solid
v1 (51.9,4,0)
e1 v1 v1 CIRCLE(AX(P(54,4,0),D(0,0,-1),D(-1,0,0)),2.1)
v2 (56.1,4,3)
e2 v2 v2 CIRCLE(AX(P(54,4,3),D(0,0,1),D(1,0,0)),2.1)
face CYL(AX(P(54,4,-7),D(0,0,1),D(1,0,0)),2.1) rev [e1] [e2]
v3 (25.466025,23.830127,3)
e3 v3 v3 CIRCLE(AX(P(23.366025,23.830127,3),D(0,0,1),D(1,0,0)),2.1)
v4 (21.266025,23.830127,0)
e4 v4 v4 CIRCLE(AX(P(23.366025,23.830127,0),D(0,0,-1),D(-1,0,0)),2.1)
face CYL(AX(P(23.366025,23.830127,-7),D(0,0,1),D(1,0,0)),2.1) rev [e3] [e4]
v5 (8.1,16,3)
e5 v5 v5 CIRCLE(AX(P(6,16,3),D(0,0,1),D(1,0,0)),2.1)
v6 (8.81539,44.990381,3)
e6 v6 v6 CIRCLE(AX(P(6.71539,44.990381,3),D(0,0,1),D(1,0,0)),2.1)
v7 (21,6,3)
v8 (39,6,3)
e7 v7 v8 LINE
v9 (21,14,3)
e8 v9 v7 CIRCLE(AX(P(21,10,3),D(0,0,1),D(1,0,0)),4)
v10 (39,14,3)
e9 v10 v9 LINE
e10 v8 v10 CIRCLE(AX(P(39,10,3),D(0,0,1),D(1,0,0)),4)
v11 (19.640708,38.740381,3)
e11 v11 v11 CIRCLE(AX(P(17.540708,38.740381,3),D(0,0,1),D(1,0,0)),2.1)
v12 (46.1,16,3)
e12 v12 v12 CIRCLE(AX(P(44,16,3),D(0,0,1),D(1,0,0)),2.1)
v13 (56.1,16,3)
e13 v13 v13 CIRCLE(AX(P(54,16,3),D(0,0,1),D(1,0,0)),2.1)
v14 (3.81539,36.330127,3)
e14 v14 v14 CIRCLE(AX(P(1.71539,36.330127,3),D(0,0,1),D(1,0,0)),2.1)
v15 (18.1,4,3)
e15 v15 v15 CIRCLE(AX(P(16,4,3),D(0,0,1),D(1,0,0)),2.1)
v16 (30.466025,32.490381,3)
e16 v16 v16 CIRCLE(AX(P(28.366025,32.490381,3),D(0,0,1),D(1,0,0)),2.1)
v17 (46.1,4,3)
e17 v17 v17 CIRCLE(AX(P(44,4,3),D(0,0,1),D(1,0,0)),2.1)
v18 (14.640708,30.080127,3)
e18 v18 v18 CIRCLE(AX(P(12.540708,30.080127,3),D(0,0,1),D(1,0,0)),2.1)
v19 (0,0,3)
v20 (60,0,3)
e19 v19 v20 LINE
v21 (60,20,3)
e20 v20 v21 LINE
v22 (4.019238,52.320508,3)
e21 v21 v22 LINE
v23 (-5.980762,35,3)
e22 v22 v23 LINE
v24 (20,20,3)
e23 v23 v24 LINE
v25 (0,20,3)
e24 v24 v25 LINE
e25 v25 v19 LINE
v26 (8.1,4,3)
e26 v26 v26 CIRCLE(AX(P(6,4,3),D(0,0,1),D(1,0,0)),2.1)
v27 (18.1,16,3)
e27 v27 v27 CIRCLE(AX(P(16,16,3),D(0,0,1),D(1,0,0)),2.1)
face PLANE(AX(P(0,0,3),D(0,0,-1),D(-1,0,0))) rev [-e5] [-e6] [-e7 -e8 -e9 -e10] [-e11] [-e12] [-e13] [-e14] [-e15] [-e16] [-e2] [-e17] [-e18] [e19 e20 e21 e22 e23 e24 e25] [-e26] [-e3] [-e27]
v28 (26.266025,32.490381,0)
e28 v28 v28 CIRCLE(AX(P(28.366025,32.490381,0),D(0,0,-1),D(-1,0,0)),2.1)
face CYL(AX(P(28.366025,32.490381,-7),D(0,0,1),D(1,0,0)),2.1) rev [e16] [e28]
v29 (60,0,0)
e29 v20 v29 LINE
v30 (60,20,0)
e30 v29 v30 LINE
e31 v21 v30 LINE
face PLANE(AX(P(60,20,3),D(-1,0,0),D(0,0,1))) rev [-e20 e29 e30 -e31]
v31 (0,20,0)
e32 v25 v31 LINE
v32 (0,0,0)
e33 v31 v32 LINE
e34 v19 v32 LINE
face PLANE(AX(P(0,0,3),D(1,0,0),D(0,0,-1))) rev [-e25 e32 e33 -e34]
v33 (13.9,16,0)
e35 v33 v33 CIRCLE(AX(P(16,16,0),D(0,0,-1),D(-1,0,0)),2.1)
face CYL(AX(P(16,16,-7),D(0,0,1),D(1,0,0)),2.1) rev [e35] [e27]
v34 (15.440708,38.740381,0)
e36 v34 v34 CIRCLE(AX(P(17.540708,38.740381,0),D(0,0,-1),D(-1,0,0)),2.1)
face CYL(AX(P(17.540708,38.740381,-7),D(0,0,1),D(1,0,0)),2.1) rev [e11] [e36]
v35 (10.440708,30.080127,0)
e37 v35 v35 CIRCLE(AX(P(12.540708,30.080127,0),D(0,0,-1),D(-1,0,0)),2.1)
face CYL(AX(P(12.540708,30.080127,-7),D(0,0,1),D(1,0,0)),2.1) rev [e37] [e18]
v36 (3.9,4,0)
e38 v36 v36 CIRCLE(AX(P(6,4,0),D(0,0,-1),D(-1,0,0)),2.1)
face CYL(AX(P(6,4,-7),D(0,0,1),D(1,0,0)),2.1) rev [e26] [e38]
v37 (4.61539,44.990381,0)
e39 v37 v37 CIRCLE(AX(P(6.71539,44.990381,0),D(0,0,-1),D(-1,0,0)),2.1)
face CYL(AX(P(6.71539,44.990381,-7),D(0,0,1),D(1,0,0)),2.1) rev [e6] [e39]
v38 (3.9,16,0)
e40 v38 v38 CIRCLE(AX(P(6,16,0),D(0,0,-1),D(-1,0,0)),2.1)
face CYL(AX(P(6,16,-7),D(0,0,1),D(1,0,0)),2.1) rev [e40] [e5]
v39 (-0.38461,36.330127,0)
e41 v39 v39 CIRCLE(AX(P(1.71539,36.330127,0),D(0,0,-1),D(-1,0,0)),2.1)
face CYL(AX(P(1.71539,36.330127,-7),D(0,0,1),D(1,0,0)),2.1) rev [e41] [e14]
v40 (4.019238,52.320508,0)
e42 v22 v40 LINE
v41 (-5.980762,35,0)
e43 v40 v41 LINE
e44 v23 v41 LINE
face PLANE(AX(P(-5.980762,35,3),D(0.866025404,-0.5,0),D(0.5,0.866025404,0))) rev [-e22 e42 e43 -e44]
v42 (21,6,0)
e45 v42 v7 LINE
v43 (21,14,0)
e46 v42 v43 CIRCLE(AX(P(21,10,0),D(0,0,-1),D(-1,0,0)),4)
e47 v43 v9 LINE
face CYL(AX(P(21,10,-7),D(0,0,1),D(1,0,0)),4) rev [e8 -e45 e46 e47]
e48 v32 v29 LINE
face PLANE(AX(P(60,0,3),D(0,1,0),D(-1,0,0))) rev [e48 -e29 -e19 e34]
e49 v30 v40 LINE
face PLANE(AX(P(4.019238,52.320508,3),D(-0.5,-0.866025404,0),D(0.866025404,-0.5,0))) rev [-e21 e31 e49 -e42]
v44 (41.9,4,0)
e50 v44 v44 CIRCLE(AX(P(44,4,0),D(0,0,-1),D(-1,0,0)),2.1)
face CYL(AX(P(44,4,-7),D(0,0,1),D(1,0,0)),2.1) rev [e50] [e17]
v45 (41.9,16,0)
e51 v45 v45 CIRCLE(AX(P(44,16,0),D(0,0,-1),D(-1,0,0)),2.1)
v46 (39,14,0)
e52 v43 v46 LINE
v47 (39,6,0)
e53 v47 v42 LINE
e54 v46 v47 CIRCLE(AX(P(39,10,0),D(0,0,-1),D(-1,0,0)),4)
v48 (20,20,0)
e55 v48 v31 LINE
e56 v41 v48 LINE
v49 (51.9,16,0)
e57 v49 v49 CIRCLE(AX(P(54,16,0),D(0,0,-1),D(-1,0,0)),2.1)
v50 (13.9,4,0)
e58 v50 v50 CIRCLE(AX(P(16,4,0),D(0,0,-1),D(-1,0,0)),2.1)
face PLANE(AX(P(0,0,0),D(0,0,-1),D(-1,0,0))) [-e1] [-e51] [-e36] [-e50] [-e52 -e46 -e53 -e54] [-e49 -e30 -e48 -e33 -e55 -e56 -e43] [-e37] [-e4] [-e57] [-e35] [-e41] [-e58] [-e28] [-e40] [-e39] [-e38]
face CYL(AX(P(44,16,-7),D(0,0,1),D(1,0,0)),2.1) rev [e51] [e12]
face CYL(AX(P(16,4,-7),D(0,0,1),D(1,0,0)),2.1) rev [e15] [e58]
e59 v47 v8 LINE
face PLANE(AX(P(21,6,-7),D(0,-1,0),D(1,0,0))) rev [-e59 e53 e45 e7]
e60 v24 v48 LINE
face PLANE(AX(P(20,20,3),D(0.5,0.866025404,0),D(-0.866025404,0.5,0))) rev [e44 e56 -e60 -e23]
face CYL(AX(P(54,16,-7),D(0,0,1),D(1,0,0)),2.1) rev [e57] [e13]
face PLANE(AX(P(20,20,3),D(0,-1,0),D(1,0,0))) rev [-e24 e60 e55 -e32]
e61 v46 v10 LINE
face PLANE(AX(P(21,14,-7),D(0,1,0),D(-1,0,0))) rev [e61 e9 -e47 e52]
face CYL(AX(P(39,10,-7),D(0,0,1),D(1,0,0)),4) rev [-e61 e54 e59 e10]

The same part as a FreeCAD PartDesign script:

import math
import FreeCAD as App
import Part
import Sketcher
from FreeCAD import Vector
Q = App.Units.Quantity


def add_polygon(sketch, points):
    """Adds a closed chain of lines whose ends are joined by coincident constraints."""
    first, n = sketch.GeometryCount, len(points)
    for a, b in zip(points, points[1:] + points[:1]):
        sketch.addGeometry(Part.LineSegment(App.Vector(*a, 0), App.Vector(*b, 0)), False)
    for i in range(n):
        sketch.addConstraint(Sketcher.Constraint("Coincident", first + i, 2, first + (i + 1) % n, 1))

doc = App.newDocument("Part")
body = doc.addObject("PartDesign::Body", "Body")

sketch1 = body.newObject("Sketcher::SketchObject", "Sketch")
sketch1.AttachmentSupport = (doc.getObject("XY_Plane"), [""])
sketch1.MapMode = "FlatFace"
add_polygon(sketch1, [(0, 0), (60, 0), (60, 20), (4.019238, 52.320508), (-5.980762, 35), (20, 20), (0, 20)])
sketch1.addConstraint([
    Sketcher.Constraint("Horizontal", 0),
    Sketcher.Constraint("Vertical", 1),
    Sketcher.Constraint("Horizontal", 5),
    Sketcher.Constraint("Vertical", 6),
    Sketcher.Constraint("Coincident", 6, 2, -1, 1),
    Sketcher.Constraint("Perpendicular", 2, 3),
    Sketcher.Constraint("Perpendicular", 3, 4),
    Sketcher.Constraint("Horizontal", 1, 2, 4, 2),
    Sketcher.Constraint("Equal", 5, 1),
    Sketcher.Constraint("DistanceX", 0, 1, 0, 2, Q("60 mm")),
    Sketcher.Constraint("DistanceX", 5, 2, 5, 1, Q("20 mm")),
    Sketcher.Constraint("Angle", 2, Q("150 deg")),
    Sketcher.Constraint("Distance", 4, Q("30 mm")),
])
pad1 = body.newObject("PartDesign::Pad", "Pad")
pad1.Profile = sketch1
pad1.Length = 3

sketch2 = body.newObject("Sketcher::SketchObject", "Sketch001")
sketch2.AttachmentSupport = (doc.getObject("XY_Plane"), [""])
sketch2.MapMode = "FlatFace"
sketch2.AttachmentOffset = App.Placement(Vector(0, 0, 3), App.Rotation())
sketch2.addGeometry([
    Part.Circle(Vector(6.71539, 44.990381, 0), Vector(0, 0, 1), 2.1),
    Part.Circle(Vector(1.71539, 36.330127, 0), Vector(0, 0, 1), 2.1),
    Part.Circle(Vector(17.540708, 38.740381, 0), Vector(0, 0, 1), 2.1),
    Part.Circle(Vector(12.540708, 30.080127, 0), Vector(0, 0, 1), 2.1),
    Part.Circle(Vector(23.366025, 23.830127, 0), Vector(0, 0, 1), 2.1),
    Part.Circle(Vector(28.366025, 32.490381, 0), Vector(0, 0, 1), 2.1),
    Part.Circle(Vector(6, 16, 0), Vector(0, 0, 1), 2.1),
    Part.Circle(Vector(6, 4, 0), Vector(0, 0, 1), 2.1),
    Part.Circle(Vector(54, 16, 0), Vector(0, 0, 1), 2.1),
    Part.Circle(Vector(54, 4, 0), Vector(0, 0, 1), 2.1),
    Part.Circle(Vector(16, 16, 0), Vector(0, 0, 1), 2.1),
    Part.Circle(Vector(16, 4, 0), Vector(0, 0, 1), 2.1),
    Part.Circle(Vector(44, 16, 0), Vector(0, 0, 1), 2.1),
    Part.Circle(Vector(44, 4, 0), Vector(0, 0, 1), 2.1),
    Part.LineSegment(Vector(39, 14, 0), Vector(21, 14, 0)),
    Part.ArcOfCircle(Part.Circle(Vector(21, 10, 0), Vector(0, 0, 1), 4), math.radians(90), math.radians(270)),
    Part.LineSegment(Vector(21, 6, 0), Vector(39, 6, 0)),
    Part.ArcOfCircle(Part.Circle(Vector(39, 10, 0), Vector(0, 0, 1), 4), math.radians(-90), math.radians(90)),
], False)
sketch2.addConstraint([
    Sketcher.Constraint("Tangent", 14, 2, 15, 1),
    Sketcher.Constraint("Tangent", 15, 2, 16, 1),
    Sketcher.Constraint("Tangent", 16, 2, 17, 1),
    Sketcher.Constraint("Tangent", 17, 2, 14, 1),
    Sketcher.Constraint("Horizontal", 14),
    Sketcher.Constraint("Horizontal", 16),
    Sketcher.Constraint("Equal", 0, 1),
    Sketcher.Constraint("Equal", 1, 2),
    Sketcher.Constraint("Equal", 2, 3),
    Sketcher.Constraint("Equal", 3, 4),
    Sketcher.Constraint("Equal", 4, 5),
    Sketcher.Constraint("Equal", 5, 6),
    Sketcher.Constraint("Equal", 6, 7),
    Sketcher.Constraint("Equal", 7, 8),
    Sketcher.Constraint("Equal", 8, 9),
    Sketcher.Constraint("Equal", 9, 10),
    Sketcher.Constraint("Equal", 10, 11),
    Sketcher.Constraint("Equal", 11, 12),
    Sketcher.Constraint("Equal", 12, 13),
    Sketcher.Constraint("Horizontal", 6, 3, 8, 3),
    Sketcher.Constraint("Horizontal", 7, 3, 9, 3),
    Sketcher.Constraint("Horizontal", 8, 3, 10, 3),
    Sketcher.Constraint("Horizontal", 9, 3, 11, 3),
    Sketcher.Constraint("Horizontal", 10, 3, 12, 3),
    Sketcher.Constraint("Horizontal", 11, 3, 13, 3),
    Sketcher.Constraint("Vertical", 6, 3, 7, 3),
    Sketcher.Constraint("Vertical", 8, 3, 9, 3),
    Sketcher.Constraint("Vertical", 10, 3, 11, 3),
    Sketcher.Constraint("Vertical", 12, 3, 13, 3),
    Sketcher.Constraint("Radius", 15, Q("4 mm")),
    Sketcher.Constraint("Diameter", 0, Q("4.2 mm")),
    Sketcher.Constraint("DistanceX", 14, 2, 14, 1, Q("18 mm")),
    Sketcher.Constraint("DistanceX", -1, 1, 6, 3, Q("6 mm")),
    Sketcher.Constraint("DistanceY", -1, 1, 6, 3, Q("16 mm")),
    Sketcher.Constraint("DistanceY", -1, 1, 7, 3, Q("4 mm")),
    Sketcher.Constraint("DistanceX", -1, 1, 8, 3, Q("54 mm")),
    Sketcher.Constraint("DistanceX", -1, 1, 10, 3, Q("16 mm")),
    Sketcher.Constraint("DistanceX", -1, 1, 12, 3, Q("44 mm")),
    Sketcher.Constraint("DistanceX", -1, 1, 15, 3, Q("21 mm")),
    Sketcher.Constraint("DistanceY", -1, 1, 15, 3, Q("10 mm")),
    Sketcher.Constraint("DistanceX", 1, 3, 0, 3, Q("5 mm")),
    Sketcher.Constraint("DistanceX", 3, 3, 2, 3, Q("5 mm")),
    Sketcher.Constraint("DistanceX", 4, 3, 5, 3, Q("5 mm")),
    Sketcher.Constraint("DistanceY", 4, 3, 1, 3, Q("12.5 mm")),
    Sketcher.Constraint("DistanceY", 5, 3, 0, 3, Q("12.5 mm")),
    Sketcher.Constraint("DistanceY", 2, 3, 0, 3, Q("6.25 mm")),
    Sketcher.Constraint("DistanceY", 3, 3, 1, 3, Q("6.25 mm")),
    Sketcher.Constraint("DistanceX", -1, 1, 0, 3, Q("6.71539 mm")),
    Sketcher.Constraint("DistanceY", -1, 1, 0, 3, Q("44.990381 mm")),
    Sketcher.Constraint("DistanceY", -1, 1, 1, 3, Q("36.330127 mm")),
    Sketcher.Constraint("DistanceX", -1, 1, 2, 3, Q("17.540708 mm")),
    Sketcher.Constraint("DistanceX", -1, 1, 4, 3, Q("23.366025 mm")),
])
pocket1 = body.newObject("PartDesign::Pocket", "Pocket")
pocket1.Profile = sketch2
pocket1.Length = 10

doc.recompute()
